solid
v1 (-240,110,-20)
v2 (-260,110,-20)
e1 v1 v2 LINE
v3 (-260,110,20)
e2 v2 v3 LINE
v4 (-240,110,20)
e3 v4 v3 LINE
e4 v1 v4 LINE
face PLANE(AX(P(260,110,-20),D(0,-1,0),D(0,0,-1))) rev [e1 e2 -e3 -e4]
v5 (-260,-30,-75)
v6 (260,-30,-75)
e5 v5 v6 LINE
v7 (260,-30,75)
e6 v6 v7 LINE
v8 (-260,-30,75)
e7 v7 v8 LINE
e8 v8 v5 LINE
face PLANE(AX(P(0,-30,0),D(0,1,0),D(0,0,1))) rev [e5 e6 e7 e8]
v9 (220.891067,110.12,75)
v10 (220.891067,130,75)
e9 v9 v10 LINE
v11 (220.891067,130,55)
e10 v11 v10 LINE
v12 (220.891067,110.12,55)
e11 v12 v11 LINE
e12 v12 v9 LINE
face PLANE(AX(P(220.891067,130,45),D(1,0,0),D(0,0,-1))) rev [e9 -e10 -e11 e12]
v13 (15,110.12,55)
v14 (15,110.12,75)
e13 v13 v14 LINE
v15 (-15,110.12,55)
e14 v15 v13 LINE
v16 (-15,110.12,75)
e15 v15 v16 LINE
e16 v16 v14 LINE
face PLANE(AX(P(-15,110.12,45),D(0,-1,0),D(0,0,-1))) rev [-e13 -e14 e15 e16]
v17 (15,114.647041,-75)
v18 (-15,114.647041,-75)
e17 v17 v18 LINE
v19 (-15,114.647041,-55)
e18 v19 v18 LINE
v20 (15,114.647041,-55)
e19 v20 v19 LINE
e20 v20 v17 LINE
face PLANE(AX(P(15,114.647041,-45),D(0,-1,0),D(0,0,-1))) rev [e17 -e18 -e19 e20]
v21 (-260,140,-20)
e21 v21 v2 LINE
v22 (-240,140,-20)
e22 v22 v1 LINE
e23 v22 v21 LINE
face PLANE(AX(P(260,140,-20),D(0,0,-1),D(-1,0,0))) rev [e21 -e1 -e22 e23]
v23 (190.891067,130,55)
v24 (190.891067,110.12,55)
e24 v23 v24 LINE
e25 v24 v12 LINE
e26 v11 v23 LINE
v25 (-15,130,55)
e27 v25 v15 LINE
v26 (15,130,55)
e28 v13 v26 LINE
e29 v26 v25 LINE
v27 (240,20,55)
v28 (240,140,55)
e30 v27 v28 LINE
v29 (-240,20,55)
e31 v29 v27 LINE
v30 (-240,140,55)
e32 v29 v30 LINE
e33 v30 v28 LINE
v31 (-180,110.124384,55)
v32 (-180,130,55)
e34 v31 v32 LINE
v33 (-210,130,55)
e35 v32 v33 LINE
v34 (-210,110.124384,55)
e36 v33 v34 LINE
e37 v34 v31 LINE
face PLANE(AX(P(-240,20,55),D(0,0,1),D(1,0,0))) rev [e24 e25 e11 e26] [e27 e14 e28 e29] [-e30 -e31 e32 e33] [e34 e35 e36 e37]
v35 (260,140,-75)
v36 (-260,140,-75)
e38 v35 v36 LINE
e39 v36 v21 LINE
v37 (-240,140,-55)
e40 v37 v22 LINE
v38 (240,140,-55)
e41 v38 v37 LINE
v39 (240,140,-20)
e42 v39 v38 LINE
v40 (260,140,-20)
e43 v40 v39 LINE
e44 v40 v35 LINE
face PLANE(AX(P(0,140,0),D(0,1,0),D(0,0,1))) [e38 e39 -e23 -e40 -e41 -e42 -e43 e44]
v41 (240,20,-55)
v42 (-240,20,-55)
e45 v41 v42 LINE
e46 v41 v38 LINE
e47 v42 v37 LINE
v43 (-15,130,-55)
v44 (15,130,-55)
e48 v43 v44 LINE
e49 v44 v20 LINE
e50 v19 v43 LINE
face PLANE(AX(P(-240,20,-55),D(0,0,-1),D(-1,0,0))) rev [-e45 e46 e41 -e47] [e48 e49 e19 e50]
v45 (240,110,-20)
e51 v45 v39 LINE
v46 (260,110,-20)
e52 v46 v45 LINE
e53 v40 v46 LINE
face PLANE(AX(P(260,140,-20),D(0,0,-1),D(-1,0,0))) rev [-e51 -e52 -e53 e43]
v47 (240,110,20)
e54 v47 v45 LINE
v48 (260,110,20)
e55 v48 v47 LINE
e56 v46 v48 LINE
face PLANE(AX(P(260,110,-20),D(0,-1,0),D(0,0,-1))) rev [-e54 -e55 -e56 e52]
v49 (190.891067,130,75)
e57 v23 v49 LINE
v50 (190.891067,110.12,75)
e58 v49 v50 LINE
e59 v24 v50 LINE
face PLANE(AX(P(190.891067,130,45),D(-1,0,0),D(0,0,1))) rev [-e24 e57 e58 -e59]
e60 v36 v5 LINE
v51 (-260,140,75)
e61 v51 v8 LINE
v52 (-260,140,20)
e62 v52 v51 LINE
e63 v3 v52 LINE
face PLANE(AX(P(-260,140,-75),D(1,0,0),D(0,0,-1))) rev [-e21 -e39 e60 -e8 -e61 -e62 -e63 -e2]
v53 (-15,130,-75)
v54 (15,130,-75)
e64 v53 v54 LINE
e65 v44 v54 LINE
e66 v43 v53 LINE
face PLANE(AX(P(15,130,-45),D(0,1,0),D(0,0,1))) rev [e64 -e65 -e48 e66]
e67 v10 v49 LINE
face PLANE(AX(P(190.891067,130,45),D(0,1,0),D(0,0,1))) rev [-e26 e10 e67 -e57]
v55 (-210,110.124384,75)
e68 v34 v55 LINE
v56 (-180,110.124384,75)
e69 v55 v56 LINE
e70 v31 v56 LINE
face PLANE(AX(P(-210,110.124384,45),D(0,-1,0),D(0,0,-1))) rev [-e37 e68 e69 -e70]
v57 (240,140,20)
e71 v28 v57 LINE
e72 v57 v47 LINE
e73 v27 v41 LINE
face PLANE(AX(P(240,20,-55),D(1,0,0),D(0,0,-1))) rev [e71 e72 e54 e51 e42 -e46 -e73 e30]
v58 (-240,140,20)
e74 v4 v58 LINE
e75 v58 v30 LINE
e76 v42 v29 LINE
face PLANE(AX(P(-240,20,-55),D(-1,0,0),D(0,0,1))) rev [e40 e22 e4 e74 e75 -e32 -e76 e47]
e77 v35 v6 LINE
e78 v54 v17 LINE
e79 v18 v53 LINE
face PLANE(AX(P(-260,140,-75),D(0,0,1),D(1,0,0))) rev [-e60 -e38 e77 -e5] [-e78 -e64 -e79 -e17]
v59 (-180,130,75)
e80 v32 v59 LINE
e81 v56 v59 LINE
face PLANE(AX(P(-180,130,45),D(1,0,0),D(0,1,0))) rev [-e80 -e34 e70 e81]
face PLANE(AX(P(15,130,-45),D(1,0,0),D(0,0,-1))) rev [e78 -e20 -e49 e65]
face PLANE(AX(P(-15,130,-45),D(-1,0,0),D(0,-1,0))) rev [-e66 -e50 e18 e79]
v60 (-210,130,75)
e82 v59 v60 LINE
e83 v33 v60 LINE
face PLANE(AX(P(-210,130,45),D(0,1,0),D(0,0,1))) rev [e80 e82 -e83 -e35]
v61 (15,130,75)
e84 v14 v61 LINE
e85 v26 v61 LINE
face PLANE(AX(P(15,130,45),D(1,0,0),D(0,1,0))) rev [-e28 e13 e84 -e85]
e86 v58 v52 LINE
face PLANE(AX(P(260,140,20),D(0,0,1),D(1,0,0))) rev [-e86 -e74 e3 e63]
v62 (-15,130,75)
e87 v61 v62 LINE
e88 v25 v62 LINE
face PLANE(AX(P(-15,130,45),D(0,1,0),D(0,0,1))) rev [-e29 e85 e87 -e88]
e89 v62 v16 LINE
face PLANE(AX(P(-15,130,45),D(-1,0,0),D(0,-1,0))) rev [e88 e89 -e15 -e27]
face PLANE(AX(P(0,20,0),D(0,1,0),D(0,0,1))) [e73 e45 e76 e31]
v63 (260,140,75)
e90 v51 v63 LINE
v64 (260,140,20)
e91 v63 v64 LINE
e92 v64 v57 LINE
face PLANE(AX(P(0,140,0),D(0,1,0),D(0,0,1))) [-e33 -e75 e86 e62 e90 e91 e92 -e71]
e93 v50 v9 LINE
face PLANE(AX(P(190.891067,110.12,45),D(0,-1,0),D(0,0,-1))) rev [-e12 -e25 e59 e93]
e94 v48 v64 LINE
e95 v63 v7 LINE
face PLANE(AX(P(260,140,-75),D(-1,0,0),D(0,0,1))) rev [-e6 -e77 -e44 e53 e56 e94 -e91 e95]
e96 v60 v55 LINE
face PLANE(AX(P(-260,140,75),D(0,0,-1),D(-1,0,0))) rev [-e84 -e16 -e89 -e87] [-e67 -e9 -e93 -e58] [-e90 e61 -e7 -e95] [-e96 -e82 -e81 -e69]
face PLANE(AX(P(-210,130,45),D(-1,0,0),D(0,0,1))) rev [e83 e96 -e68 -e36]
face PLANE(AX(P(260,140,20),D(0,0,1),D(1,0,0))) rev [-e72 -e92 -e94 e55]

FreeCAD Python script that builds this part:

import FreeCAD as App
import Part
import Sketcher
Q = App.Units.Quantity

doc = App.newDocument("Part")
params = doc.addObject("Spreadsheet::Sheet", "Params")
for row, (alias, value) in enumerate([
    ("sketch1_width", "520 mm"),
    ("sketch1_height", "150 mm"),
    ("pad1_length", "140 mm"),
    ("sketch2_width", "480 mm"),
    ("sketch2_height", "110 mm"),
    ("pocket1_length", "120 mm"),
    ("sketch3_width", "30 mm"),
    ("sketch3_height", "40 mm"),
    ("sketch4_width", "520 mm"),
    ("sketch4_height", "150 mm"),
    ("pad2_length", "30 mm"),
    ("sketch5_width", "30 mm"),
    ("pocket3_length", "30 mm"),
    ("sketch6_width", "30 mm"),
    ("pocket4_length", "30 mm"),
    ("sketch7_width", "30 mm"),
    ("sketch7_height", "19.88 mm"),
    ("pocket5_length", "30 mm"),
    ("sketch8_width", "30 mm"),
    ("sketch8_height", "19.88 mm"),
    ("pocket6_length", "30 mm"),
], start=1):
    params.set(f"A{row}", alias)
    params.set(f"B{row}", "=" + value)
    params.setAlias(f"B{row}", alias)

body = doc.addObject("PartDesign::Body", "Body")

# Sketch on XZ plane
sketch1 = body.newObject("Sketcher::SketchObject", "Sketch")
sketch1.AttachmentSupport = (doc.getObject("XZ_Plane"), [""])
sketch1.MapMode = "FlatFace"
sketch1.addGeometry([
    Part.LineSegment(App.Vector(-260, -75, 0), App.Vector(-260, 75, 0)),
    Part.LineSegment(App.Vector(-260, 75, 0), App.Vector(260, 75, 0)),
    Part.LineSegment(App.Vector(260, 75, 0), App.Vector(260, -75, 0)),
    Part.LineSegment(App.Vector(260, -75, 0), App.Vector(-260, -75, 0)),
], False)
sketch1.addConstraint([
    Sketcher.Constraint("Coincident", 0, 2, 1, 1),
    Sketcher.Constraint("Coincident", 1, 2, 2, 1),
    Sketcher.Constraint("Coincident", 2, 2, 3, 1),
    Sketcher.Constraint("Coincident", 3, 2, 0, 1),
    Sketcher.Constraint("Vertical", 0),
    Sketcher.Constraint("Horizontal", 1),
    Sketcher.Constraint("Vertical", 2),
    Sketcher.Constraint("Horizontal", 3),
    Sketcher.Constraint("Symmetric", 0, 2, 2, 2, -1, 1),
    Sketcher.Constraint("DistanceX", 1, 1, 1, 2, Q("520 mm")),
    Sketcher.Constraint("DistanceY", 0, 1, 0, 2, Q("150 mm")),
])
sketch1.setExpression("Constraints[9]", "Params.sketch1_width")
sketch1.setExpression("Constraints[10]", "Params.sketch1_height")
pad1 = body.newObject("PartDesign::Pad", "Pad")
pad1.Profile = sketch1
pad1.setExpression("Length", "Params.pad1_length")
pad1.Reversed = True

# Sketch on XZ plane
sketch2 = body.newObject("Sketcher::SketchObject", "Sketch001")
sketch2.AttachmentSupport = (doc.getObject("XZ_Plane"), [""])
sketch2.MapMode = "FlatFace"
sketch2.AttachmentOffset = App.Placement(App.Vector(0, 0, -140), App.Rotation())
sketch2.addGeometry([
    Part.LineSegment(App.Vector(-240, -55, 0), App.Vector(-240, 55, 0)),
    Part.LineSegment(App.Vector(-240, 55, 0), App.Vector(240, 55, 0)),
    Part.LineSegment(App.Vector(240, 55, 0), App.Vector(240, -55, 0)),
    Part.LineSegment(App.Vector(240, -55, 0), App.Vector(-240, -55, 0)),
], False)
sketch2.addConstraint([
    Sketcher.Constraint("Coincident", 0, 2, 1, 1),
    Sketcher.Constraint("Coincident", 1, 2, 2, 1),
    Sketcher.Constraint("Coincident", 2, 2, 3, 1),
    Sketcher.Constraint("Coincident", 3, 2, 0, 1),
    Sketcher.Constraint("Vertical", 0),
    Sketcher.Constraint("Horizontal", 1),
    Sketcher.Constraint("Vertical", 2),
    Sketcher.Constraint("Horizontal", 3),
    Sketcher.Constraint("Symmetric", 0, 2, 2, 2, -1, 1),
    Sketcher.Constraint("DistanceX", 1, 1, 1, 2, Q("480 mm")),
    Sketcher.Constraint("DistanceY", 0, 1, 0, 2, Q("110 mm")),
])
sketch2.setExpression("Constraints[9]", "Params.sketch2_width")
sketch2.setExpression("Constraints[10]", "Params.sketch2_height")
pocket1 = body.newObject("PartDesign::Pocket", "Pocket")
pocket1.Profile = sketch2
pocket1.setExpression("Length", "Params.pocket1_length")
pocket1.Reversed = True

# Sketch on YZ plane
sketch3 = body.newObject("Sketcher::SketchObject", "Sketch002")
sketch3.AttachmentSupport = (doc.getObject("YZ_Plane"), [""])
sketch3.MapMode = "FlatFace"
sketch3.AttachmentOffset = App.Placement(App.Vector(0, 0, -260), App.Rotation())
sketch3.addGeometry([
    Part.LineSegment(App.Vector(140, -20, 0), App.Vector(110, -20, 0)),
    Part.LineSegment(App.Vector(110, -20, 0), App.Vector(110, 20, 0)),
    Part.LineSegment(App.Vector(110, 20, 0), App.Vector(140, 20, 0)),
    Part.LineSegment(App.Vector(140, 20, 0), App.Vector(140, -20, 0)),
], False)
sketch3.addConstraint([
    Sketcher.Constraint("Coincident", 0, 2, 1, 1),
    Sketcher.Constraint("Coincident", 1, 2, 2, 1),
    Sketcher.Constraint("Coincident", 2, 2, 3, 1),
    Sketcher.Constraint("Coincident", 3, 2, 0, 1),
    Sketcher.Constraint("Horizontal", 0),
    Sketcher.Constraint("Vertical", 1),
    Sketcher.Constraint("Horizontal", 2),
    Sketcher.Constraint("Vertical", 3),
    Sketcher.Constraint("DistanceX", 0, 2, 0, 1, Q("30 mm")),
    Sketcher.Constraint("DistanceY", 1, 1, 1, 2, Q("40 mm")),
    Sketcher.Constraint("DistanceX", -1, 1, 0, 2, Q("110 mm")),
    Sketcher.Constraint("DistanceY", 0, 2, -1, 1, Q("20 mm")),
])
sketch3.setExpression("Constraints[8]", "Params.sketch3_width")
sketch3.setExpression("Constraints[9]", "Params.sketch3_height")
pocket2 = body.newObject("PartDesign::Pocket", "Pocket001")
pocket2.Profile = sketch3
pocket2.Type = "ThroughAll"
pocket2.Reversed = True

# Sketch on XZ plane
sketch4 = body.newObject("Sketcher::SketchObject", "Sketch003")
sketch4.AttachmentSupport = (doc.getObject("XZ_Plane"), [""])
sketch4.MapMode = "FlatFace"
sketch4.addGeometry([
    Part.LineSegment(App.Vector(-260, 75, 0), App.Vector(-260, -75, 0)),
    Part.LineSegment(App.Vector(-260, -75, 0), App.Vector(260, -75, 0)),
    Part.LineSegment(App.Vector(260, -75, 0), App.Vector(260, 75, 0)),
    Part.LineSegment(App.Vector(260, 75, 0), App.Vector(-260, 75, 0)),
], False)
sketch4.addConstraint([
    Sketcher.Constraint("Coincident", 0, 2, 1, 1),
    Sketcher.Constraint("Coincident", 1, 2, 2, 1),
    Sketcher.Constraint("Coincident", 2, 2, 3, 1),
    Sketcher.Constraint("Coincident", 3, 2, 0, 1),
    Sketcher.Constraint("Vertical", 0),
    Sketcher.Constraint("Horizontal", 1),
    Sketcher.Constraint("Vertical", 2),
    Sketcher.Constraint("Horizontal", 3),
    Sketcher.Constraint("Symmetric", 0, 2, 2, 2, -1, 1),
    Sketcher.Constraint("DistanceX", 1, 1, 1, 2, Q("520 mm")),
    Sketcher.Constraint("DistanceY", 0, 2, 0, 1, Q("150 mm")),
])
sketch4.setExpression("Constraints[9]", "Params.sketch4_width")
sketch4.setExpression("Constraints[10]", "Params.sketch4_height")
pad2 = body.newObject("PartDesign::Pad", "Pad001")
pad2.Profile = sketch4
pad2.setExpression("Length", "Params.pad2_length")

# Sketch on XY plane
sketch5 = body.newObject("Sketcher::SketchObject", "Sketch004")
sketch5.AttachmentSupport = (doc.getObject("XY_Plane"), [""])
sketch5.MapMode = "FlatFace"
sketch5.AttachmentOffset = App.Placement(App.Vector(0, 0, -75), App.Rotation())
sketch5.addGeometry([
    Part.LineSegment(App.Vector(15, 130, 0), App.Vector(15, 115, 0)),
    Part.LineSegment(App.Vector(15, 115, 0), App.Vector(-15, 115, 0)),
    Part.LineSegment(App.Vector(-15, 115, 0), App.Vector(-15, 130, 0)),
    Part.LineSegment(App.Vector(-15, 130, 0), App.Vector(15, 130, 0)),
], False)
sketch5.addConstraint([
    Sketcher.Constraint("Coincident", 0, 2, 1, 1),
    Sketcher.Constraint("Coincident", 1, 2, 2, 1),
    Sketcher.Constraint("Coincident", 2, 2, 3, 1),
    Sketcher.Constraint("Coincident", 3, 2, 0, 1),
    Sketcher.Constraint("Vertical", 0),
    Sketcher.Constraint("Horizontal", 1),
    Sketcher.Constraint("Vertical", 2),
    Sketcher.Constraint("Horizontal", 3),
    Sketcher.Constraint("DistanceX", 1, 2, 1, 1, Q("30 mm")),
    Sketcher.Constraint("DistanceX", -1, 1, 0, 2, Q("15 mm")),
    Sketcher.Constraint("DistanceY", -1, 1, 2, 2, Q("130 mm")),
    Sketcher.Constraint("DistanceY", 0, 2, 0, 1, Q("15.352959 mm")),
])
sketch5.setExpression("Constraints[8]", "Params.sketch5_width")
pocket3 = body.newObject("PartDesign::Pocket", "Pocket002")
pocket3.Profile = sketch5
pocket3.setExpression("Length", "Params.pocket3_length")
pocket3.Reversed = True

# Sketch on XY plane
sketch6 = body.newObject("Sketcher::SketchObject", "Sketch005")
sketch6.AttachmentSupport = (doc.getObject("XY_Plane"), [""])
sketch6.MapMode = "FlatFace"
sketch6.AttachmentOffset = App.Placement(App.Vector(0, 0, 75), App.Rotation())
sketch6.addGeometry([
    Part.LineSegment(App.Vector(-210, 130, 0), App.Vector(-210, 110, 0)),
    Part.LineSegment(App.Vector(-210, 110, 0), App.Vector(-180, 110, 0)),
    Part.LineSegment(App.Vector(-180, 110, 0), App.Vector(-180, 130, 0)),
    Part.LineSegment(App.Vector(-180, 130, 0), App.Vector(-210, 130, 0)),
], False)
sketch6.addConstraint([
    Sketcher.Constraint("Coincident", 0, 2, 1, 1),
    Sketcher.Constraint("Coincident", 1, 2, 2, 1),
    Sketcher.Constraint("Coincident", 2, 2, 3, 1),
    Sketcher.Constraint("Coincident", 3, 2, 0, 1),
    Sketcher.Constraint("Vertical", 0),
    Sketcher.Constraint("Horizontal", 1),
    Sketcher.Constraint("Vertical", 2),
    Sketcher.Constraint("Horizontal", 3),
    Sketcher.Constraint("DistanceX", 1, 1, 1, 2, Q("30 mm")),
    Sketcher.Constraint("DistanceX", 0, 2, -1, 1, Q("210 mm")),
    Sketcher.Constraint("DistanceY", -1, 1, 2, 2, Q("130 mm")),
    Sketcher.Constraint("DistanceY", 0, 2, 0, 1, Q("19.875616 mm")),
])
sketch6.setExpression("Constraints[8]", "Params.sketch6_width")
pocket4 = body.newObject("PartDesign::Pocket", "Pocket003")
pocket4.Profile = sketch6
pocket4.setExpression("Length", "Params.pocket4_length")

# Sketch on XY plane
sketch7 = body.newObject("Sketcher::SketchObject", "Sketch006")
sketch7.AttachmentSupport = (doc.getObject("XY_Plane"), [""])
sketch7.MapMode = "FlatFace"
sketch7.AttachmentOffset = App.Placement(App.Vector(0, 0, 75), App.Rotation())
sketch7.addGeometry([
    Part.LineSegment(App.Vector(-15, 130, 0), App.Vector(-15, 110, 0)),
    Part.LineSegment(App.Vector(-15, 110, 0), App.Vector(15, 110, 0)),
    Part.LineSegment(App.Vector(15, 110, 0), App.Vector(15, 130, 0)),
    Part.LineSegment(App.Vector(15, 130, 0), App.Vector(-15, 130, 0)),
], False)
sketch7.addConstraint([
    Sketcher.Constraint("Coincident", 0, 2, 1, 1),
    Sketcher.Constraint("Coincident", 1, 2, 2, 1),
    Sketcher.Constraint("Coincident", 2, 2, 3, 1),
    Sketcher.Constraint("Coincident", 3, 2, 0, 1),
    Sketcher.Constraint("Vertical", 0),
    Sketcher.Constraint("Horizontal", 1),
    Sketcher.Constraint("Vertical", 2),
    Sketcher.Constraint("Horizontal", 3),
    Sketcher.Constraint("DistanceX", 1, 1, 1, 2, Q("30 mm")),
    Sketcher.Constraint("DistanceX", 0, 2, -1, 1, Q("15 mm")),
    Sketcher.Constraint("DistanceY", -1, 1, 2, 2, Q("130 mm")),
    Sketcher.Constraint("DistanceY", 0, 2, 0, 1, Q("19.88 mm")),
])
sketch7.setExpression("Constraints[8]", "Params.sketch7_width")
sketch7.setExpression("Constraints[11]", "Params.sketch7_height")
pocket5 = body.newObject("PartDesign::Pocket", "Pocket004")
pocket5.Profile = sketch7
pocket5.setExpression("Length", "Params.pocket5_length")

# Sketch on XY plane
sketch8 = body.newObject("Sketcher::SketchObject", "Sketch007")
sketch8.AttachmentSupport = (doc.getObject("XY_Plane"), [""])
sketch8.MapMode = "FlatFace"
sketch8.AttachmentOffset = App.Placement(App.Vector(0, 0, 75), App.Rotation())
sketch8.addGeometry([
    Part.LineSegment(App.Vector(191, 130, 0), App.Vector(191, 110, 0)),
    Part.LineSegment(App.Vector(191, 110, 0), App.Vector(221, 110, 0)),
    Part.LineSegment(App.Vector(221, 110, 0), App.Vector(221, 130, 0)),
    Part.LineSegment(App.Vector(221, 130, 0), App.Vector(191, 130, 0)),
], False)
sketch8.addConstraint([
    Sketcher.Constraint("Coincident", 0, 2, 1, 1),
    Sketcher.Constraint("Coincident", 1, 2, 2, 1),
    Sketcher.Constraint("Coincident", 2, 2, 3, 1),
    Sketcher.Constraint("Coincident", 3, 2, 0, 1),
    Sketcher.Constraint("Vertical", 0),
    Sketcher.Constraint("Horizontal", 1),
    Sketcher.Constraint("Vertical", 2),
    Sketcher.Constraint("Horizontal", 3),
    Sketcher.Constraint("DistanceX", 1, 1, 1, 2, Q("30 mm")),
    Sketcher.Constraint("DistanceY", -1, 1, 2, 2, Q("130 mm")),
    Sketcher.Constraint("DistanceY", 0, 2, 0, 1, Q("19.88 mm")),
    Sketcher.Constraint("DistanceX", -1, 1, 0, 2, Q("190.891067 mm")),
])
sketch8.setExpression("Constraints[8]", "Params.sketch8_width")
sketch8.setExpression("Constraints[10]", "Params.sketch8_height")
pocket6 = body.newObject("PartDesign::Pocket", "Pocket005")
pocket6.Profile = sketch8
pocket6.setExpression("Length", "Params.pocket6_length")

doc.recompute()
